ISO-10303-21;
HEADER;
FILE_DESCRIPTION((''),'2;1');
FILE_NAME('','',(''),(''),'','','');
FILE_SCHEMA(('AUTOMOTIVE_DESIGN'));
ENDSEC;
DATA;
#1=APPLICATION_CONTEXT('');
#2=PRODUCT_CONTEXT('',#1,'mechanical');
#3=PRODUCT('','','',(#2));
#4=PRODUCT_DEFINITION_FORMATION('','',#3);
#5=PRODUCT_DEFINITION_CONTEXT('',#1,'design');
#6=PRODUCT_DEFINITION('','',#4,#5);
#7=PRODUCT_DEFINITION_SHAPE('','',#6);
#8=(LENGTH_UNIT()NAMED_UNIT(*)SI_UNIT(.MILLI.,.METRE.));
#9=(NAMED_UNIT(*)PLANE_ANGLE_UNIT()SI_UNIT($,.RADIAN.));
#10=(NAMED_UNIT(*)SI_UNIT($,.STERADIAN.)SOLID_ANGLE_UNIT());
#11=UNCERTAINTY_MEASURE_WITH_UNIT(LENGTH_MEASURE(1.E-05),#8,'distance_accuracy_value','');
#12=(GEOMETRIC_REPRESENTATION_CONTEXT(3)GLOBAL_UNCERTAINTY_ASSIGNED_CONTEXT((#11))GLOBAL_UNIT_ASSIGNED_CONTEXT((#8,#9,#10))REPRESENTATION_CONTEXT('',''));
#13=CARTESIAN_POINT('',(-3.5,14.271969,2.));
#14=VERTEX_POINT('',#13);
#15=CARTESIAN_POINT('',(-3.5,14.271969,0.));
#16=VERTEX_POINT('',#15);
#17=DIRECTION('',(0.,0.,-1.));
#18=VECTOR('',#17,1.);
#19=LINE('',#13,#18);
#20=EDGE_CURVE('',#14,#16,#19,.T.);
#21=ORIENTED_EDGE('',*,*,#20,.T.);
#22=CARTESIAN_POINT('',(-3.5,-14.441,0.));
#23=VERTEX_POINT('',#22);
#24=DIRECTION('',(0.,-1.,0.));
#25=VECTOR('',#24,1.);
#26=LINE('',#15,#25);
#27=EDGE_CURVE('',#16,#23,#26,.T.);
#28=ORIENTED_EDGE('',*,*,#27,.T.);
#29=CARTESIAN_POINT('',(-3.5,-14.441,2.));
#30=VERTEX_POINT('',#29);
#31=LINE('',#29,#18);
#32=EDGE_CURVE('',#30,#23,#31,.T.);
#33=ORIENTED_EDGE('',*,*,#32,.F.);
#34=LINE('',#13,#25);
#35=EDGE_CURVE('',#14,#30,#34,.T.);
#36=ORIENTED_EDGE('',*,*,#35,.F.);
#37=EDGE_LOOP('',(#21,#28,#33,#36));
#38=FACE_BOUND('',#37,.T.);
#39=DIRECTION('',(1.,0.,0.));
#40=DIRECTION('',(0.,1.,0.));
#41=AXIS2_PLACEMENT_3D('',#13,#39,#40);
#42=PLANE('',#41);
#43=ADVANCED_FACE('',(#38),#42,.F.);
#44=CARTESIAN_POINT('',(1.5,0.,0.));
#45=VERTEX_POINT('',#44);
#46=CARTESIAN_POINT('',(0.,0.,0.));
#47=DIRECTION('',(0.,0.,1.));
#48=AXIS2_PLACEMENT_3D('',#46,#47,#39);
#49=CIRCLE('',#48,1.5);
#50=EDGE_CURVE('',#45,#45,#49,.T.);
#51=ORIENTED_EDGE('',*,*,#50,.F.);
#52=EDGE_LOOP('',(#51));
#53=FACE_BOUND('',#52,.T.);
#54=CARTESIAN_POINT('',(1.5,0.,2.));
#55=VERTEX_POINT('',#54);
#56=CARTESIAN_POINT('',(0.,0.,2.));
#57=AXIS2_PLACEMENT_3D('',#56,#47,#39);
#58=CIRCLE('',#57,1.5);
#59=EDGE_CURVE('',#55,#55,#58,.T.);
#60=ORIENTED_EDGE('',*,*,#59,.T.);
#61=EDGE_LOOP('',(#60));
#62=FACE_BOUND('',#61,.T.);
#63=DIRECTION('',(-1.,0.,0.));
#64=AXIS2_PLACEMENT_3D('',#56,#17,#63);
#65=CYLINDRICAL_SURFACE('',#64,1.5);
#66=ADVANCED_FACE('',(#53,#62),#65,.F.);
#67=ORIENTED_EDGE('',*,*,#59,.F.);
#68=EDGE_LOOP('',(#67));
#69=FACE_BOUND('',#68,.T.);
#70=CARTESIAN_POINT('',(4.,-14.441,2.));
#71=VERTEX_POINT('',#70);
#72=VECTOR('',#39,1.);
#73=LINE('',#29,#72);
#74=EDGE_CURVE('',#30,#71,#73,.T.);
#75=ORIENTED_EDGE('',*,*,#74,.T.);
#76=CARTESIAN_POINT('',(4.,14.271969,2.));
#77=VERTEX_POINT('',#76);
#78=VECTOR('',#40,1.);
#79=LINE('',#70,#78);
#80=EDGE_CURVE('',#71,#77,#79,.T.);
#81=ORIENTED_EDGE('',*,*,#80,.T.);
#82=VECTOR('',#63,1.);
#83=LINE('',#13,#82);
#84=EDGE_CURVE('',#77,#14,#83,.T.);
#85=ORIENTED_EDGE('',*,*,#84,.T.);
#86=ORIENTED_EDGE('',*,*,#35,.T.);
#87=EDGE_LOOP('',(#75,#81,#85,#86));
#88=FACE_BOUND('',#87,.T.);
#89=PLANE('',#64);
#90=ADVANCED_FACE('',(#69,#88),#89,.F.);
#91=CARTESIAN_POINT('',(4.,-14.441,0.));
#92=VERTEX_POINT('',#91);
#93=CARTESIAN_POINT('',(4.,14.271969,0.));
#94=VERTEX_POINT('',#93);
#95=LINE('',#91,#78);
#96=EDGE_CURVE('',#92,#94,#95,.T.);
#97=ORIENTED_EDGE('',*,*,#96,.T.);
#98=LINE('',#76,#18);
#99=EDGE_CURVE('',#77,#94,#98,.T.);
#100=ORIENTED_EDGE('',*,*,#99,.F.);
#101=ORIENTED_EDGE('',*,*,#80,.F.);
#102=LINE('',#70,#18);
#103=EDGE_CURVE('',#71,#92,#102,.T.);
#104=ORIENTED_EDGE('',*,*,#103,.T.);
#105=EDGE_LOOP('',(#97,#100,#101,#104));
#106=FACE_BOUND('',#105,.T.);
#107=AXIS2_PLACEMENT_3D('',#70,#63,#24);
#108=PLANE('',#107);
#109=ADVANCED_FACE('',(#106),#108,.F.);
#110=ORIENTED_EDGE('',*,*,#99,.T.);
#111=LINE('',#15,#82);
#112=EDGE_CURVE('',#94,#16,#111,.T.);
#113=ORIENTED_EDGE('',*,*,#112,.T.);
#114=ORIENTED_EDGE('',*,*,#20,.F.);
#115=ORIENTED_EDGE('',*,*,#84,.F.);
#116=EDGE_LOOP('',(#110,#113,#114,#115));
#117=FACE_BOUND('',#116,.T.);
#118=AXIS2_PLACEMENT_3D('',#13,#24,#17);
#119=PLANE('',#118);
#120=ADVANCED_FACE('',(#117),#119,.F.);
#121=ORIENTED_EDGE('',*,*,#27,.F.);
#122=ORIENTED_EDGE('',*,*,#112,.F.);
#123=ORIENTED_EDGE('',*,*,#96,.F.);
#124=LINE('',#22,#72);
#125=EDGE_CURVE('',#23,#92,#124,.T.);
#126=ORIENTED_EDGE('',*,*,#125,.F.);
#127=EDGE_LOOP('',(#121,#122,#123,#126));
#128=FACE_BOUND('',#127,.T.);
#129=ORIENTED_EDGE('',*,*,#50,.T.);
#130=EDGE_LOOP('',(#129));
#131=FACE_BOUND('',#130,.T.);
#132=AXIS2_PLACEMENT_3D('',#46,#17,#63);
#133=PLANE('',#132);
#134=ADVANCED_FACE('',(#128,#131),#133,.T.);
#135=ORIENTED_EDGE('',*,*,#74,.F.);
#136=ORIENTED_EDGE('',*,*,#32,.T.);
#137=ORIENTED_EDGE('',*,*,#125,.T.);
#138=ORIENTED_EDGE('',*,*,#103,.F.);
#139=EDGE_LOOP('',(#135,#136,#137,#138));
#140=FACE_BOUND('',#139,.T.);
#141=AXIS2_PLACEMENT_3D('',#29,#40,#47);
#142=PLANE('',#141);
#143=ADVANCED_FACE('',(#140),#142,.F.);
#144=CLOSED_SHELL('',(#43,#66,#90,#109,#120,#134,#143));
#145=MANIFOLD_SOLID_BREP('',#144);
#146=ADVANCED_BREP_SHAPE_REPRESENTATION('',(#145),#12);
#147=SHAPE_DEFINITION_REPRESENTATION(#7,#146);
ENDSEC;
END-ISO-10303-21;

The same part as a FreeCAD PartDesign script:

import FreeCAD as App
import Part
import Sketcher

doc = App.newDocument("Part")
body = doc.addObject("PartDesign::Body", "Body")

# Sketch on XY plane
sketch1 = body.newObject("Sketcher::SketchObject", "Sketch")
sketch1.AttachmentSupport = (doc.getObject("XY_Plane"), [""])
sketch1.MapMode = "FlatFace"
sketch1.addGeometry([
    Part.LineSegment(App.Vector(-3.5, 14.3, 0), App.Vector(-3.5, -14.4, 0)),  # 0
    Part.LineSegment(App.Vector(-3.5, -14.4, 0), App.Vector(4, -14.4, 0)),  # 1
    Part.LineSegment(App.Vector(4, -14.4, 0), App.Vector(4, 14.3, 0)),  # 2
    Part.LineSegment(App.Vector(4, 14.3, 0), App.Vector(-3.5, 14.3, 0)),  # 3
    Part.Circle(App.Vector(0, 0, 0), App.Vector(0, 0, 1), 1.5),  # 4
], False)
sketch1.addConstraint([
    Sketcher.Constraint("Coincident", 0, 2, 1, 1),
    Sketcher.Constraint("Coincident", 1, 2, 2, 1),
    Sketcher.Constraint("Coincident", 2, 2, 3, 1),
    Sketcher.Constraint("Coincident", 3, 2, 0, 1),
    Sketcher.Constraint("Vertical", 0),
    Sketcher.Constraint("Horizontal", 1),
    Sketcher.Constraint("Vertical", 2),
    Sketcher.Constraint("Horizontal", 3),
    Sketcher.Constraint("Coincident", 4, 3, -1, 1),
    Sketcher.Constraint("Diameter", 4, 3.0),
    Sketcher.Constraint("DistanceX", 1, 1, 1, 2, 7.5),
    Sketcher.Constraint("DistanceX", -1, 1, 1, 2, 4.0),
    Sketcher.Constraint("DistanceY", 0, 2, -1, 1, 14.441),
    Sketcher.Constraint("DistanceY", 0, 2, 0, 1, 28.712969),
])
pad1 = body.newObject("PartDesign::Pad", "Pad")
pad1.Profile = sketch1
pad1.Length = 2

doc.recompute()
